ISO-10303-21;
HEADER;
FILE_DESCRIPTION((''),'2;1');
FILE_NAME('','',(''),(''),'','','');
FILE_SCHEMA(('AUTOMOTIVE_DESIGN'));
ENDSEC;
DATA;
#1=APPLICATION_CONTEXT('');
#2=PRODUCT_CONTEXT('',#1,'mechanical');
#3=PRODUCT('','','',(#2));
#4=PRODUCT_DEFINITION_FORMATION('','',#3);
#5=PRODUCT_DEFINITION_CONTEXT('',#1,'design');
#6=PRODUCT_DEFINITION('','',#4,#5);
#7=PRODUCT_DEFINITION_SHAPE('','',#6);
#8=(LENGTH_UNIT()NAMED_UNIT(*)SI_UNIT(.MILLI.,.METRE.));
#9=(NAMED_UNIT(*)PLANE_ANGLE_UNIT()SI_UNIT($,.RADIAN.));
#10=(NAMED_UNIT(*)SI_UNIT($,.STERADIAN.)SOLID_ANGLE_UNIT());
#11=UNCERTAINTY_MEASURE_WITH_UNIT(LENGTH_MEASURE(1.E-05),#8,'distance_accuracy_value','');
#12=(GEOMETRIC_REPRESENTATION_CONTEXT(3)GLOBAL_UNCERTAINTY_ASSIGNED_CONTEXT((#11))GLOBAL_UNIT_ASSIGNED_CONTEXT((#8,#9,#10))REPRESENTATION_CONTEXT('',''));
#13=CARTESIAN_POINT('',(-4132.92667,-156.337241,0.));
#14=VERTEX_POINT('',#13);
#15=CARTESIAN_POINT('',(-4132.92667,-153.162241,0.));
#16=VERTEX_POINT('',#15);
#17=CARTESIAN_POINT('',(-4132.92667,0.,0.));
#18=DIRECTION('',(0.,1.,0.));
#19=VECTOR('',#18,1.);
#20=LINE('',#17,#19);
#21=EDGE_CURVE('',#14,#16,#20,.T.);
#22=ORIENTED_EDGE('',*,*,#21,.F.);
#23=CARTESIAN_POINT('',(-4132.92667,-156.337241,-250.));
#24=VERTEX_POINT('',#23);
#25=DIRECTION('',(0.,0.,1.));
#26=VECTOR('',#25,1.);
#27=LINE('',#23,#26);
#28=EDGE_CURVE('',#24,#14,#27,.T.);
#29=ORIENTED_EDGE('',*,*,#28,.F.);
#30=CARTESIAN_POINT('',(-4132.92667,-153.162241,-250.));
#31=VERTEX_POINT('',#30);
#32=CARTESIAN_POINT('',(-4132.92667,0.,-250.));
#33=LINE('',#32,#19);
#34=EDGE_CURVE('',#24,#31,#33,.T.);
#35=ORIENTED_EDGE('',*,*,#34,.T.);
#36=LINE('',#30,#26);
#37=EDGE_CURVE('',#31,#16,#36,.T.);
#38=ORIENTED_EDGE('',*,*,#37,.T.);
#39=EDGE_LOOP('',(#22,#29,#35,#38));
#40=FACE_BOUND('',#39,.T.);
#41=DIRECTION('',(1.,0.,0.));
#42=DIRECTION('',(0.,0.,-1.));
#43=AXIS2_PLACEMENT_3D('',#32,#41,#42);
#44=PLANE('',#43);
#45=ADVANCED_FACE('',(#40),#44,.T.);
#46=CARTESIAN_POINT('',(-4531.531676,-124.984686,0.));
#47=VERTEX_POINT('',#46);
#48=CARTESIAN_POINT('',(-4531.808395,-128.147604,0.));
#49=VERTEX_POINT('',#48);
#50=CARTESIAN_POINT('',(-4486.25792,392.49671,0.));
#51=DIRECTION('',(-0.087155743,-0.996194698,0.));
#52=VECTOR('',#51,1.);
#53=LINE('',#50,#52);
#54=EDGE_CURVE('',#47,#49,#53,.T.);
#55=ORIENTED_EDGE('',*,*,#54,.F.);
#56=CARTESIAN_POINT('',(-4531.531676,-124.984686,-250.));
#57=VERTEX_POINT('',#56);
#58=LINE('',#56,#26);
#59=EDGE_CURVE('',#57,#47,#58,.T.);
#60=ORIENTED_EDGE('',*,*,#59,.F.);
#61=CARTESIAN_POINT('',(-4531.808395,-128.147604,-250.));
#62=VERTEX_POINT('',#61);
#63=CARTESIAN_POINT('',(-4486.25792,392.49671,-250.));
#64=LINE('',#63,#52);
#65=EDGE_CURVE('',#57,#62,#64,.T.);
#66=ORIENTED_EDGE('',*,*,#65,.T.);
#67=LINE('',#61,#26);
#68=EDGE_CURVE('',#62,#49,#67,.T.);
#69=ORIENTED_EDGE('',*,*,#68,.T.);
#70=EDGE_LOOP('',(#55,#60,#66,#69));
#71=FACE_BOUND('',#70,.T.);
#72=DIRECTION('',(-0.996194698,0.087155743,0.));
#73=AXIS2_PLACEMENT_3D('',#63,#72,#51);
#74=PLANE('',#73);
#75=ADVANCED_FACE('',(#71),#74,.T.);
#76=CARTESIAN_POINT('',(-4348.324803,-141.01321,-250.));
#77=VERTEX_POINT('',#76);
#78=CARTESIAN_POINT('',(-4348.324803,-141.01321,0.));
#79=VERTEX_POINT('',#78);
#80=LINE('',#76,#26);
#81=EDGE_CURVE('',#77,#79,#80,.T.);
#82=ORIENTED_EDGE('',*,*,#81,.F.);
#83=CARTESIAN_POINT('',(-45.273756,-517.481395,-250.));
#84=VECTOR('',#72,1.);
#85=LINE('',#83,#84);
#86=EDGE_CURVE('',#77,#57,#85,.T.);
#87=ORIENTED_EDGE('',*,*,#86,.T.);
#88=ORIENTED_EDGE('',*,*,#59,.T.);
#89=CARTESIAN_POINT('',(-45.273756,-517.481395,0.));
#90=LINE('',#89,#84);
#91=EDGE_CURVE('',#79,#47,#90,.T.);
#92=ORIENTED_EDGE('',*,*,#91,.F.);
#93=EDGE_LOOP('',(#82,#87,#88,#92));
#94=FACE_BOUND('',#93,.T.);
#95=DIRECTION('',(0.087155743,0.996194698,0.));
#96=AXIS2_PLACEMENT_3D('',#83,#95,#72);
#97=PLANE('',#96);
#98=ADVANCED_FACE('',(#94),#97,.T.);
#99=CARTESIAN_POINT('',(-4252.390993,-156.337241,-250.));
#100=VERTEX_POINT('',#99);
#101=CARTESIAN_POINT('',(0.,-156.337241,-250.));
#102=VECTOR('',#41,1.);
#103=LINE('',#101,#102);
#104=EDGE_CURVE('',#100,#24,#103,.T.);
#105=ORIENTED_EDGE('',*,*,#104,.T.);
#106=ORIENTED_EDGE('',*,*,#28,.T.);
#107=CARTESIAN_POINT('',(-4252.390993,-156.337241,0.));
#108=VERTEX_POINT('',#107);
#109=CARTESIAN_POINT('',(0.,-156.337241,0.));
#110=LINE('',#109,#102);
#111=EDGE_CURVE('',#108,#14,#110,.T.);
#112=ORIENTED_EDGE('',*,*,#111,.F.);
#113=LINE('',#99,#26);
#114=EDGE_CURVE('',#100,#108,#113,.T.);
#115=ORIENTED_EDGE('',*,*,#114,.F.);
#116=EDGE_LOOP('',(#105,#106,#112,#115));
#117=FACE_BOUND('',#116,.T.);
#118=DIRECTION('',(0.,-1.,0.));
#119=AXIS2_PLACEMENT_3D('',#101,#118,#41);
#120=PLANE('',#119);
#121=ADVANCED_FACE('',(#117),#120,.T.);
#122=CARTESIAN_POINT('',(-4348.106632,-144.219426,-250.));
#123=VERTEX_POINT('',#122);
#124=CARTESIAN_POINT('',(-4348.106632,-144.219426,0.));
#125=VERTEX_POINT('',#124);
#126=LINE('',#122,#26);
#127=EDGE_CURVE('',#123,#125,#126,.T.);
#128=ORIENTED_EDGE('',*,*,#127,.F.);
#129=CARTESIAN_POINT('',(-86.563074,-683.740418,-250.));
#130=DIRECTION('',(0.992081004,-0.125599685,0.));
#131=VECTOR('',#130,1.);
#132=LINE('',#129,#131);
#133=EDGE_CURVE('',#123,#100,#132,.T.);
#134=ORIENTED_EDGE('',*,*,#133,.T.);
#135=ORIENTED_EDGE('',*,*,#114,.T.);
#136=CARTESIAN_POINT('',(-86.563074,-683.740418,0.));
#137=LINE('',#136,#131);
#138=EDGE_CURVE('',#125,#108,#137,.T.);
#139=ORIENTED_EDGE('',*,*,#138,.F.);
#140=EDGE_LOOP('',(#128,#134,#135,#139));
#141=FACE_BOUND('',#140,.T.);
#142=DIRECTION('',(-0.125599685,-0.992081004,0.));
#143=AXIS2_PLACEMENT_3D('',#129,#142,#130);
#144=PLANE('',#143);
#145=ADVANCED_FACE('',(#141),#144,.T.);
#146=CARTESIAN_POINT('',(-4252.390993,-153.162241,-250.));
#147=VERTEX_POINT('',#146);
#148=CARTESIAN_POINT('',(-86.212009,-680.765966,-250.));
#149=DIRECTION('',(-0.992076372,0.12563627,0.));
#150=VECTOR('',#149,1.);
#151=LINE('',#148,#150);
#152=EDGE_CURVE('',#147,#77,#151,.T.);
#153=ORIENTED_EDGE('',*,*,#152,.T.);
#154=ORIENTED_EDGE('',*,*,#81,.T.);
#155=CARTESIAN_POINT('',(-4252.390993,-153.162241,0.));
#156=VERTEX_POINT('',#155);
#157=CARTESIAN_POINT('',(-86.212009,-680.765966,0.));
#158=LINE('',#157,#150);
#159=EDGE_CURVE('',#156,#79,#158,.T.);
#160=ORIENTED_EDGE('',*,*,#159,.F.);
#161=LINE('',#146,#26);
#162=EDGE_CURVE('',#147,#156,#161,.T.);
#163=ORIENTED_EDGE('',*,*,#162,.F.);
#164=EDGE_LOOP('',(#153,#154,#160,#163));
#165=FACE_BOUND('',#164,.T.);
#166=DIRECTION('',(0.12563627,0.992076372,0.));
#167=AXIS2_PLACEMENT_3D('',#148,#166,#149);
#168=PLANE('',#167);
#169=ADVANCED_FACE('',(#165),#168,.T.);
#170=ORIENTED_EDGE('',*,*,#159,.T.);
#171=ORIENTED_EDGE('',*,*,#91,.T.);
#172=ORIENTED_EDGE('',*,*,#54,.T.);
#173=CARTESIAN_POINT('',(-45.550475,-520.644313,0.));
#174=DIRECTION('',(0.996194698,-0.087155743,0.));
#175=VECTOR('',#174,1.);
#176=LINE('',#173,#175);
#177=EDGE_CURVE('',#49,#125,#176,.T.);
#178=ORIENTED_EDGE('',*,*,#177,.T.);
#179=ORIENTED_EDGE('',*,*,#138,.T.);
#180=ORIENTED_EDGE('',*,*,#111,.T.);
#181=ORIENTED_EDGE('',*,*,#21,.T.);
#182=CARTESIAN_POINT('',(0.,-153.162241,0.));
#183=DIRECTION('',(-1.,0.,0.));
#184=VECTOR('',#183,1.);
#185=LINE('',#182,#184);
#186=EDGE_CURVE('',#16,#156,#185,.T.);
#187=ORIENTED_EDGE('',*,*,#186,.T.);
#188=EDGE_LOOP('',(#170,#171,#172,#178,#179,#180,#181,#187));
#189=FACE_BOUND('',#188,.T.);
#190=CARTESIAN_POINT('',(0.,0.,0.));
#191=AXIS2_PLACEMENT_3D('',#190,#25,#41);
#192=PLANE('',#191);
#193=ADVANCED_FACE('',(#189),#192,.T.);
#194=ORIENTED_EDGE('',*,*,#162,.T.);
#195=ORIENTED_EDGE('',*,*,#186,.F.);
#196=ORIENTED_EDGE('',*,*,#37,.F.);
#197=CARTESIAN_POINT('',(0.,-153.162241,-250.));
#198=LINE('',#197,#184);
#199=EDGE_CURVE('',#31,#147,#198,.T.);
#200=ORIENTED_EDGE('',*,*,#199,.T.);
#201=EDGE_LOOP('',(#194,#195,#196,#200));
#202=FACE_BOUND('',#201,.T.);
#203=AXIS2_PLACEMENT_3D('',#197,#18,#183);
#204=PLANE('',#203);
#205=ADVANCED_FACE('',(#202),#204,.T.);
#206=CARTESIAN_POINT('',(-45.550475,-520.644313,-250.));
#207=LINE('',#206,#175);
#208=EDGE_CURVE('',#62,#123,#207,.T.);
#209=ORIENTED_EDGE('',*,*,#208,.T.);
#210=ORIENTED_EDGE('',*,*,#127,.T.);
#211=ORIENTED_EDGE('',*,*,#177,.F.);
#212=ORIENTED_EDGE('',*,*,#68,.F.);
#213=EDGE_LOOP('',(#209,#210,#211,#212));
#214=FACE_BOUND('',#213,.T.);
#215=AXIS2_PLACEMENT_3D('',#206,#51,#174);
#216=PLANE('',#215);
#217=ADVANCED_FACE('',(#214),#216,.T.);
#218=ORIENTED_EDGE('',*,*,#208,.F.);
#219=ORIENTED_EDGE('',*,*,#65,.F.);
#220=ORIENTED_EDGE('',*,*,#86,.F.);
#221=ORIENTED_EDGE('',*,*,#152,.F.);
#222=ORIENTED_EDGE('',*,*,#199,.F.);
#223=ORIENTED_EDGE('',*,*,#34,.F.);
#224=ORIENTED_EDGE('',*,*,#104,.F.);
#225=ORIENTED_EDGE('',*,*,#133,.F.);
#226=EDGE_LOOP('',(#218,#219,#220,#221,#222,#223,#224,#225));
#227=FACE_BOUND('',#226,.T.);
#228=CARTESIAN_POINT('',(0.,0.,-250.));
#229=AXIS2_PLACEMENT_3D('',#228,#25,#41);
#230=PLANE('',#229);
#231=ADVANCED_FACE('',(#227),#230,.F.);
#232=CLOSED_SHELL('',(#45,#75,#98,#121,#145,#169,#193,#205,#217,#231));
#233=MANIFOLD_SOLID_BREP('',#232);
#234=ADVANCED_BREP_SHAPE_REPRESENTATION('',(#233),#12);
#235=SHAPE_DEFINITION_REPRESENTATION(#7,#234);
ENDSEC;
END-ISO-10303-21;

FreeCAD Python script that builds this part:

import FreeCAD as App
import Part
import Sketcher
from FreeCAD import Vector
Q = App.Units.Quantity


def add_polygon(sketch, points):
    """Adds a closed chain of lines whose ends are joined by coincident constraints."""
    first, n = sketch.GeometryCount, len(points)
    for a, b in zip(points, points[1:] + points[:1]):
        sketch.addGeometry(Part.LineSegment(App.Vector(*a, 0), App.Vector(*b, 0)), False)
    for i in range(n):
        sketch.addConstraint(Sketcher.Constraint("Coincident", first + i, 2, first + (i + 1) % n, 1))

doc = App.newDocument("Part")
body = doc.addObject("PartDesign::Body", "Body")

sketch1 = doc.addObject("Sketcher::SketchObject", "Sketch")
body.addObject(sketch1)
sketch1.AttachmentSupport = (doc.XY_Plane, [""])
sketch1.MapMode = "FlatFace"
add_polygon(sketch1, [(-4531.8, -128.1), (-4348.1, -144.2), (-4252.4, -156.3), (-4132.9, -156.3), (-4132.9, -153.2), (-4252.4, -153.2), (-4348.3, -141), (-4531.5, -125)])
sketch1.addConstraint([
    Sketcher.Constraint("Horizontal", 2),
    Sketcher.Constraint("Vertical", 3),
    Sketcher.Constraint("Horizontal", 4),
    Sketcher.Constraint("Parallel", 0, 6),
    Sketcher.Constraint("Perpendicular", 6, 7),
    Sketcher.Constraint("Vertical", 1, 2, 4, 2),
    Sketcher.Constraint("Angle", 0, Q("-5 deg")),
    Sketcher.Constraint("DistanceY", 3, 1, 3, 2, Q("3.175 mm")),
    Sketcher.Constraint("Distance", 7, Q("3.175 mm")),
    Sketcher.Constraint("DistanceX", 7, 2, 4, 2, Q("279.417402 mm")),
    Sketcher.Constraint("Distance", 1, Q("96.479661 mm")),
    Sketcher.Constraint("DistanceX", 2, 1, 2, 2, Q("119.464323 mm")),
    Sketcher.Constraint("DistanceX", 0, 2, -1, 1, Q("4348.106632 mm")),
    Sketcher.Constraint("DistanceY", 1, 2, -1, 1, Q("156.337241 mm")),
    Sketcher.Constraint("DistanceX", 2, 2, -1, 1, Q("4132.92667 mm")),
    Sketcher.Constraint("DistanceY", 5, 2, -1, 1, Q("141.01321 mm")),
])
pad1 = doc.addObject("PartDesign::Pad", "Pad")
body.addObject(pad1)
pad1.Profile = sketch1
pad1.Length = 250
pad1.Reversed = True

doc.recompute()
